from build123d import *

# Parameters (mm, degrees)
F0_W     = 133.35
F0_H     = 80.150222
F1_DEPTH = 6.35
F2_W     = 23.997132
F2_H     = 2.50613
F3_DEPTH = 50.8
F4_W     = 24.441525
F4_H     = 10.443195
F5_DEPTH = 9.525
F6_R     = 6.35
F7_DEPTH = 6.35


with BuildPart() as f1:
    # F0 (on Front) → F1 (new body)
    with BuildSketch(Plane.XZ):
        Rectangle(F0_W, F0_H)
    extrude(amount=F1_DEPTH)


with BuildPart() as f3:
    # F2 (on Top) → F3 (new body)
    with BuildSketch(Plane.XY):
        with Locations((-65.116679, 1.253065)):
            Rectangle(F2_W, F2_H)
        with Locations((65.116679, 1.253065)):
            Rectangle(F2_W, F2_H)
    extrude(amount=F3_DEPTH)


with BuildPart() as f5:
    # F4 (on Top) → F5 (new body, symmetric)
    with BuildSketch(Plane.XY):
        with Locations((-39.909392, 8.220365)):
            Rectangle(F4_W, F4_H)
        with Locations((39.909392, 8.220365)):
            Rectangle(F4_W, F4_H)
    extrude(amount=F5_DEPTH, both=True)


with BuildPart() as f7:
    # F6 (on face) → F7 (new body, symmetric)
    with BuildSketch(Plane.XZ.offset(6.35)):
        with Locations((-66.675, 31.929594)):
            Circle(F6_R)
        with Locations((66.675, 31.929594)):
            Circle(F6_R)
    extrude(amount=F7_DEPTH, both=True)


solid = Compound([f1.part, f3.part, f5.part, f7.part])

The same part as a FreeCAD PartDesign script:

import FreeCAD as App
import Part
import Sketcher
from FreeCAD import Vector
Q = App.Units.Quantity

doc = App.newDocument("Part")
body = doc.addObject("PartDesign::Body", "Body")

sketch1 = body.newObject("Sketcher::SketchObject", "Sketch")
sketch1.AttachmentSupport = (doc.getObject("XZ_Plane"), [""])
sketch1.MapMode = "FlatFace"
sketch1.addGeometry(Part.LineSegment(Vector(-67, 40, 0), Vector(-67, -40, 0)), False)
sketch1.addGeometry(Part.LineSegment(Vector(-67, -40, 0), Vector(67, -40, 0)), False)
sketch1.addGeometry(Part.LineSegment(Vector(67, -40, 0), Vector(67, 40, 0)), False)
sketch1.addGeometry(Part.LineSegment(Vector(67, 40, 0), Vector(-67, 40, 0)), False)
sketch1.addConstraint(Sketcher.Constraint("Coincident", 0, 2, 1, 1))
sketch1.addConstraint(Sketcher.Constraint("Coincident", 1, 2, 2, 1))
sketch1.addConstraint(Sketcher.Constraint("Coincident", 2, 2, 3, 1))
sketch1.addConstraint(Sketcher.Constraint("Coincident", 3, 2, 0, 1))
sketch1.addConstraint(Sketcher.Constraint("Vertical", 0))
sketch1.addConstraint(Sketcher.Constraint("Horizontal", 1))
sketch1.addConstraint(Sketcher.Constraint("Vertical", 2))
sketch1.addConstraint(Sketcher.Constraint("Horizontal", 3))
sketch1.addConstraint(Sketcher.Constraint("Symmetric", 0, 2, 2, 2, -1, 1))
sketch1.addConstraint(Sketcher.Constraint("DistanceX", 1, 1, 1, 2, Q("5.25 in")))
sketch1.addConstraint(Sketcher.Constraint("DistanceY", 0, 2, 0, 1, Q("80.150222 mm")))
pad1 = body.newObject("PartDesign::Pad", "Pad")
pad1.Profile = sketch1
pad1.Length = Q("0.25 in")
body2 = doc.addObject("PartDesign::Body", "Body001")
body2.AllowCompound = True

sketch2 = body2.newObject("Sketcher::SketchObject", "Sketch001")
sketch2.AttachmentSupport = (doc.getObject("XY_Plane001"), [""])
sketch2.MapMode = "FlatFace"
sketch2.addGeometry(Part.LineSegment(Vector(-77.1, 2.5, 0), Vector(-77.1, 0, 0)), False)
sketch2.addGeometry(Part.LineSegment(Vector(-77.1, 0, 0), Vector(-53.1, 0, 0)), False)
sketch2.addGeometry(Part.LineSegment(Vector(-53.1, 0, 0), Vector(-53.1, 2.5, 0)), False)
sketch2.addGeometry(Part.LineSegment(Vector(-53.1, 2.5, 0), Vector(-77.1, 2.5, 0)), False)
sketch2.addGeometry(Part.LineSegment(Vector(53.1, 2.5, 0), Vector(53.1, 0, 0)), False)
sketch2.addGeometry(Part.LineSegment(Vector(53.1, 0, 0), Vector(77.1, 0, 0)), False)
sketch2.addGeometry(Part.LineSegment(Vector(77.1, 0, 0), Vector(77.1, 2.5, 0)), False)
sketch2.addGeometry(Part.LineSegment(Vector(77.1, 2.5, 0), Vector(53.1, 2.5, 0)), False)
sketch2.addConstraint(Sketcher.Constraint("Coincident", 0, 2, 1, 1))
sketch2.addConstraint(Sketcher.Constraint("Coincident", 1, 2, 2, 1))
sketch2.addConstraint(Sketcher.Constraint("Coincident", 2, 2, 3, 1))
sketch2.addConstraint(Sketcher.Constraint("Coincident", 3, 2, 0, 1))
sketch2.addConstraint(Sketcher.Constraint("Coincident", 4, 2, 5, 1))
sketch2.addConstraint(Sketcher.Constraint("Coincident", 5, 2, 6, 1))
sketch2.addConstraint(Sketcher.Constraint("Coincident", 6, 2, 7, 1))
sketch2.addConstraint(Sketcher.Constraint("Coincident", 7, 2, 4, 1))
sketch2.addConstraint(Sketcher.Constraint("Vertical", 0))
sketch2.addConstraint(Sketcher.Constraint("Horizontal", 1))
sketch2.addConstraint(Sketcher.Constraint("Vertical", 2))
sketch2.addConstraint(Sketcher.Constraint("Horizontal", 3))
sketch2.addConstraint(Sketcher.Constraint("Vertical", 4))
sketch2.addConstraint(Sketcher.Constraint("Horizontal", 5))
sketch2.addConstraint(Sketcher.Constraint("Vertical", 6))
sketch2.addConstraint(Sketcher.Constraint("Horizontal", 7))
sketch2.addConstraint(Sketcher.Constraint("Symmetric", 1, 2, 4, 2, -1, 1))
sketch2.addConstraint(Sketcher.Constraint("Symmetric", 0, 2, 5, 2, -2))
sketch2.addConstraint(Sketcher.Constraint("Horizontal", 3, 2, 6, 2))
sketch2.addConstraint(Sketcher.Constraint("DistanceY", 0, 2, 0, 1, Q("2.50613 mm")))
sketch2.addConstraint(Sketcher.Constraint("DistanceX", 1, 1, 1, 2, Q("23.997132 mm")))
sketch2.addConstraint(Sketcher.Constraint("DistanceX", 0, 2, 4, 2, Q("130.233358 mm")))
pad2 = body2.newObject("PartDesign::Pad", "Pad001")
pad2.Profile = sketch2
pad2.Length = Q("2 in")
body3 = doc.addObject("PartDesign::Body", "Body002")
body3.AllowCompound = True

sketch3 = body3.newObject("Sketcher::SketchObject", "Sketch002")
sketch3.AttachmentSupport = (doc.getObject("XY_Plane002"), [""])
sketch3.MapMode = "FlatFace"
sketch3.addGeometry(Part.LineSegment(Vector(-52, 13, 0), Vector(-52, 3, 0)), False)
sketch3.addGeometry(Part.LineSegment(Vector(-52, 3, 0), Vector(-28, 3, 0)), False)
sketch3.addGeometry(Part.LineSegment(Vector(-28, 3, 0), Vector(-28, 13, 0)), False)
sketch3.addGeometry(Part.LineSegment(Vector(-28, 13, 0), Vector(-52, 13, 0)), False)
sketch3.addGeometry(Part.LineSegment(Vector(28, 13, 0), Vector(28, 3, 0)), False)
sketch3.addGeometry(Part.LineSegment(Vector(28, 3, 0), Vector(52, 3, 0)), False)
sketch3.addGeometry(Part.LineSegment(Vector(52, 3, 0), Vector(52, 13, 0)), False)
sketch3.addGeometry(Part.LineSegment(Vector(52, 13, 0), Vector(28, 13, 0)), False)
sketch3.addConstraint(Sketcher.Constraint("Coincident", 0, 2, 1, 1))
sketch3.addConstraint(Sketcher.Constraint("Coincident", 1, 2, 2, 1))
sketch3.addConstraint(Sketcher.Constraint("Coincident", 2, 2, 3, 1))
sketch3.addConstraint(Sketcher.Constraint("Coincident", 3, 2, 0, 1))
sketch3.addConstraint(Sketcher.Constraint("Coincident", 4, 2, 5, 1))
sketch3.addConstraint(Sketcher.Constraint("Coincident", 5, 2, 6, 1))
sketch3.addConstraint(Sketcher.Constraint("Coincident", 6, 2, 7, 1))
sketch3.addConstraint(Sketcher.Constraint("Coincident", 7, 2, 4, 1))
sketch3.addConstraint(Sketcher.Constraint("Vertical", 0))
sketch3.addConstraint(Sketcher.Constraint("Horizontal", 1))
sketch3.addConstraint(Sketcher.Constraint("Vertical", 2))
sketch3.addConstraint(Sketcher.Constraint("Horizontal", 3))
sketch3.addConstraint(Sketcher.Constraint("Vertical", 4))
sketch3.addConstraint(Sketcher.Constraint("Horizontal", 5))
sketch3.addConstraint(Sketcher.Constraint("Vertical", 6))
sketch3.addConstraint(Sketcher.Constraint("Horizontal", 7))
sketch3.addConstraint(Sketcher.Constraint("Symmetric", 1, 2, 4, 2, -2))
sketch3.addConstraint(Sketcher.Constraint("Symmetric", 3, 2, 6, 2, -2))
sketch3.addConstraint(Sketcher.Constraint("DistanceX", 1, 1, 1, 2, Q("24.441525 mm")))
sketch3.addConstraint(Sketcher.Constraint("DistanceY", 0, 2, 0, 1, Q("10.443195 mm")))
sketch3.addConstraint(Sketcher.Constraint("DistanceX", 1, 2, -1, 1, Q("27.68863 mm")))
sketch3.addConstraint(Sketcher.Constraint("DistanceY", -1, 1, 0, 2, Q("2.998768 mm")))
pad3 = body3.newObject("PartDesign::Pad", "Pad002")
pad3.Profile = sketch3
pad3.Length = Q("0.75 in")
pad3.Midplane = True
body4 = doc.addObject("PartDesign::Body", "Body003")
body4.AllowCompound = True

sketch4 = body4.newObject("Sketcher::SketchObject", "Sketch003")
sketch4.AttachmentSupport = (doc.getObject("XZ_Plane003"), [""])
sketch4.MapMode = "FlatFace"
sketch4.AttachmentOffset = App.Placement(Vector(0, 0, 0.25 * 25.4), App.Rotation())
sketch4.addGeometry(Part.Circle(Vector(-67, 32, 0), Vector(0, 0, 1), 6), False)
sketch4.addGeometry(Part.Circle(Vector(67, 32, 0), Vector(0, 0, 1), 6), False)
sketch4.addConstraint(Sketcher.Constraint("Equal", 0, 1))
sketch4.addConstraint(Sketcher.Constraint("Symmetric", 0, 3, 1, 3, -2))
sketch4.addConstraint(Sketcher.Constraint("Diameter", 0, Q("0.5 in")))
sketch4.addConstraint(Sketcher.Constraint("DistanceX", 0, 3, 1, 3, Q("5.25 in")))
sketch4.addConstraint(Sketcher.Constraint("DistanceY", -1, 1, 0, 3, Q("31.929594 mm")))
pad4 = body4.newObject("PartDesign::Pad", "Pad003")
pad4.Profile = sketch4
pad4.Length = Q("0.5 in")
pad4.Midplane = True

doc.recompute()
